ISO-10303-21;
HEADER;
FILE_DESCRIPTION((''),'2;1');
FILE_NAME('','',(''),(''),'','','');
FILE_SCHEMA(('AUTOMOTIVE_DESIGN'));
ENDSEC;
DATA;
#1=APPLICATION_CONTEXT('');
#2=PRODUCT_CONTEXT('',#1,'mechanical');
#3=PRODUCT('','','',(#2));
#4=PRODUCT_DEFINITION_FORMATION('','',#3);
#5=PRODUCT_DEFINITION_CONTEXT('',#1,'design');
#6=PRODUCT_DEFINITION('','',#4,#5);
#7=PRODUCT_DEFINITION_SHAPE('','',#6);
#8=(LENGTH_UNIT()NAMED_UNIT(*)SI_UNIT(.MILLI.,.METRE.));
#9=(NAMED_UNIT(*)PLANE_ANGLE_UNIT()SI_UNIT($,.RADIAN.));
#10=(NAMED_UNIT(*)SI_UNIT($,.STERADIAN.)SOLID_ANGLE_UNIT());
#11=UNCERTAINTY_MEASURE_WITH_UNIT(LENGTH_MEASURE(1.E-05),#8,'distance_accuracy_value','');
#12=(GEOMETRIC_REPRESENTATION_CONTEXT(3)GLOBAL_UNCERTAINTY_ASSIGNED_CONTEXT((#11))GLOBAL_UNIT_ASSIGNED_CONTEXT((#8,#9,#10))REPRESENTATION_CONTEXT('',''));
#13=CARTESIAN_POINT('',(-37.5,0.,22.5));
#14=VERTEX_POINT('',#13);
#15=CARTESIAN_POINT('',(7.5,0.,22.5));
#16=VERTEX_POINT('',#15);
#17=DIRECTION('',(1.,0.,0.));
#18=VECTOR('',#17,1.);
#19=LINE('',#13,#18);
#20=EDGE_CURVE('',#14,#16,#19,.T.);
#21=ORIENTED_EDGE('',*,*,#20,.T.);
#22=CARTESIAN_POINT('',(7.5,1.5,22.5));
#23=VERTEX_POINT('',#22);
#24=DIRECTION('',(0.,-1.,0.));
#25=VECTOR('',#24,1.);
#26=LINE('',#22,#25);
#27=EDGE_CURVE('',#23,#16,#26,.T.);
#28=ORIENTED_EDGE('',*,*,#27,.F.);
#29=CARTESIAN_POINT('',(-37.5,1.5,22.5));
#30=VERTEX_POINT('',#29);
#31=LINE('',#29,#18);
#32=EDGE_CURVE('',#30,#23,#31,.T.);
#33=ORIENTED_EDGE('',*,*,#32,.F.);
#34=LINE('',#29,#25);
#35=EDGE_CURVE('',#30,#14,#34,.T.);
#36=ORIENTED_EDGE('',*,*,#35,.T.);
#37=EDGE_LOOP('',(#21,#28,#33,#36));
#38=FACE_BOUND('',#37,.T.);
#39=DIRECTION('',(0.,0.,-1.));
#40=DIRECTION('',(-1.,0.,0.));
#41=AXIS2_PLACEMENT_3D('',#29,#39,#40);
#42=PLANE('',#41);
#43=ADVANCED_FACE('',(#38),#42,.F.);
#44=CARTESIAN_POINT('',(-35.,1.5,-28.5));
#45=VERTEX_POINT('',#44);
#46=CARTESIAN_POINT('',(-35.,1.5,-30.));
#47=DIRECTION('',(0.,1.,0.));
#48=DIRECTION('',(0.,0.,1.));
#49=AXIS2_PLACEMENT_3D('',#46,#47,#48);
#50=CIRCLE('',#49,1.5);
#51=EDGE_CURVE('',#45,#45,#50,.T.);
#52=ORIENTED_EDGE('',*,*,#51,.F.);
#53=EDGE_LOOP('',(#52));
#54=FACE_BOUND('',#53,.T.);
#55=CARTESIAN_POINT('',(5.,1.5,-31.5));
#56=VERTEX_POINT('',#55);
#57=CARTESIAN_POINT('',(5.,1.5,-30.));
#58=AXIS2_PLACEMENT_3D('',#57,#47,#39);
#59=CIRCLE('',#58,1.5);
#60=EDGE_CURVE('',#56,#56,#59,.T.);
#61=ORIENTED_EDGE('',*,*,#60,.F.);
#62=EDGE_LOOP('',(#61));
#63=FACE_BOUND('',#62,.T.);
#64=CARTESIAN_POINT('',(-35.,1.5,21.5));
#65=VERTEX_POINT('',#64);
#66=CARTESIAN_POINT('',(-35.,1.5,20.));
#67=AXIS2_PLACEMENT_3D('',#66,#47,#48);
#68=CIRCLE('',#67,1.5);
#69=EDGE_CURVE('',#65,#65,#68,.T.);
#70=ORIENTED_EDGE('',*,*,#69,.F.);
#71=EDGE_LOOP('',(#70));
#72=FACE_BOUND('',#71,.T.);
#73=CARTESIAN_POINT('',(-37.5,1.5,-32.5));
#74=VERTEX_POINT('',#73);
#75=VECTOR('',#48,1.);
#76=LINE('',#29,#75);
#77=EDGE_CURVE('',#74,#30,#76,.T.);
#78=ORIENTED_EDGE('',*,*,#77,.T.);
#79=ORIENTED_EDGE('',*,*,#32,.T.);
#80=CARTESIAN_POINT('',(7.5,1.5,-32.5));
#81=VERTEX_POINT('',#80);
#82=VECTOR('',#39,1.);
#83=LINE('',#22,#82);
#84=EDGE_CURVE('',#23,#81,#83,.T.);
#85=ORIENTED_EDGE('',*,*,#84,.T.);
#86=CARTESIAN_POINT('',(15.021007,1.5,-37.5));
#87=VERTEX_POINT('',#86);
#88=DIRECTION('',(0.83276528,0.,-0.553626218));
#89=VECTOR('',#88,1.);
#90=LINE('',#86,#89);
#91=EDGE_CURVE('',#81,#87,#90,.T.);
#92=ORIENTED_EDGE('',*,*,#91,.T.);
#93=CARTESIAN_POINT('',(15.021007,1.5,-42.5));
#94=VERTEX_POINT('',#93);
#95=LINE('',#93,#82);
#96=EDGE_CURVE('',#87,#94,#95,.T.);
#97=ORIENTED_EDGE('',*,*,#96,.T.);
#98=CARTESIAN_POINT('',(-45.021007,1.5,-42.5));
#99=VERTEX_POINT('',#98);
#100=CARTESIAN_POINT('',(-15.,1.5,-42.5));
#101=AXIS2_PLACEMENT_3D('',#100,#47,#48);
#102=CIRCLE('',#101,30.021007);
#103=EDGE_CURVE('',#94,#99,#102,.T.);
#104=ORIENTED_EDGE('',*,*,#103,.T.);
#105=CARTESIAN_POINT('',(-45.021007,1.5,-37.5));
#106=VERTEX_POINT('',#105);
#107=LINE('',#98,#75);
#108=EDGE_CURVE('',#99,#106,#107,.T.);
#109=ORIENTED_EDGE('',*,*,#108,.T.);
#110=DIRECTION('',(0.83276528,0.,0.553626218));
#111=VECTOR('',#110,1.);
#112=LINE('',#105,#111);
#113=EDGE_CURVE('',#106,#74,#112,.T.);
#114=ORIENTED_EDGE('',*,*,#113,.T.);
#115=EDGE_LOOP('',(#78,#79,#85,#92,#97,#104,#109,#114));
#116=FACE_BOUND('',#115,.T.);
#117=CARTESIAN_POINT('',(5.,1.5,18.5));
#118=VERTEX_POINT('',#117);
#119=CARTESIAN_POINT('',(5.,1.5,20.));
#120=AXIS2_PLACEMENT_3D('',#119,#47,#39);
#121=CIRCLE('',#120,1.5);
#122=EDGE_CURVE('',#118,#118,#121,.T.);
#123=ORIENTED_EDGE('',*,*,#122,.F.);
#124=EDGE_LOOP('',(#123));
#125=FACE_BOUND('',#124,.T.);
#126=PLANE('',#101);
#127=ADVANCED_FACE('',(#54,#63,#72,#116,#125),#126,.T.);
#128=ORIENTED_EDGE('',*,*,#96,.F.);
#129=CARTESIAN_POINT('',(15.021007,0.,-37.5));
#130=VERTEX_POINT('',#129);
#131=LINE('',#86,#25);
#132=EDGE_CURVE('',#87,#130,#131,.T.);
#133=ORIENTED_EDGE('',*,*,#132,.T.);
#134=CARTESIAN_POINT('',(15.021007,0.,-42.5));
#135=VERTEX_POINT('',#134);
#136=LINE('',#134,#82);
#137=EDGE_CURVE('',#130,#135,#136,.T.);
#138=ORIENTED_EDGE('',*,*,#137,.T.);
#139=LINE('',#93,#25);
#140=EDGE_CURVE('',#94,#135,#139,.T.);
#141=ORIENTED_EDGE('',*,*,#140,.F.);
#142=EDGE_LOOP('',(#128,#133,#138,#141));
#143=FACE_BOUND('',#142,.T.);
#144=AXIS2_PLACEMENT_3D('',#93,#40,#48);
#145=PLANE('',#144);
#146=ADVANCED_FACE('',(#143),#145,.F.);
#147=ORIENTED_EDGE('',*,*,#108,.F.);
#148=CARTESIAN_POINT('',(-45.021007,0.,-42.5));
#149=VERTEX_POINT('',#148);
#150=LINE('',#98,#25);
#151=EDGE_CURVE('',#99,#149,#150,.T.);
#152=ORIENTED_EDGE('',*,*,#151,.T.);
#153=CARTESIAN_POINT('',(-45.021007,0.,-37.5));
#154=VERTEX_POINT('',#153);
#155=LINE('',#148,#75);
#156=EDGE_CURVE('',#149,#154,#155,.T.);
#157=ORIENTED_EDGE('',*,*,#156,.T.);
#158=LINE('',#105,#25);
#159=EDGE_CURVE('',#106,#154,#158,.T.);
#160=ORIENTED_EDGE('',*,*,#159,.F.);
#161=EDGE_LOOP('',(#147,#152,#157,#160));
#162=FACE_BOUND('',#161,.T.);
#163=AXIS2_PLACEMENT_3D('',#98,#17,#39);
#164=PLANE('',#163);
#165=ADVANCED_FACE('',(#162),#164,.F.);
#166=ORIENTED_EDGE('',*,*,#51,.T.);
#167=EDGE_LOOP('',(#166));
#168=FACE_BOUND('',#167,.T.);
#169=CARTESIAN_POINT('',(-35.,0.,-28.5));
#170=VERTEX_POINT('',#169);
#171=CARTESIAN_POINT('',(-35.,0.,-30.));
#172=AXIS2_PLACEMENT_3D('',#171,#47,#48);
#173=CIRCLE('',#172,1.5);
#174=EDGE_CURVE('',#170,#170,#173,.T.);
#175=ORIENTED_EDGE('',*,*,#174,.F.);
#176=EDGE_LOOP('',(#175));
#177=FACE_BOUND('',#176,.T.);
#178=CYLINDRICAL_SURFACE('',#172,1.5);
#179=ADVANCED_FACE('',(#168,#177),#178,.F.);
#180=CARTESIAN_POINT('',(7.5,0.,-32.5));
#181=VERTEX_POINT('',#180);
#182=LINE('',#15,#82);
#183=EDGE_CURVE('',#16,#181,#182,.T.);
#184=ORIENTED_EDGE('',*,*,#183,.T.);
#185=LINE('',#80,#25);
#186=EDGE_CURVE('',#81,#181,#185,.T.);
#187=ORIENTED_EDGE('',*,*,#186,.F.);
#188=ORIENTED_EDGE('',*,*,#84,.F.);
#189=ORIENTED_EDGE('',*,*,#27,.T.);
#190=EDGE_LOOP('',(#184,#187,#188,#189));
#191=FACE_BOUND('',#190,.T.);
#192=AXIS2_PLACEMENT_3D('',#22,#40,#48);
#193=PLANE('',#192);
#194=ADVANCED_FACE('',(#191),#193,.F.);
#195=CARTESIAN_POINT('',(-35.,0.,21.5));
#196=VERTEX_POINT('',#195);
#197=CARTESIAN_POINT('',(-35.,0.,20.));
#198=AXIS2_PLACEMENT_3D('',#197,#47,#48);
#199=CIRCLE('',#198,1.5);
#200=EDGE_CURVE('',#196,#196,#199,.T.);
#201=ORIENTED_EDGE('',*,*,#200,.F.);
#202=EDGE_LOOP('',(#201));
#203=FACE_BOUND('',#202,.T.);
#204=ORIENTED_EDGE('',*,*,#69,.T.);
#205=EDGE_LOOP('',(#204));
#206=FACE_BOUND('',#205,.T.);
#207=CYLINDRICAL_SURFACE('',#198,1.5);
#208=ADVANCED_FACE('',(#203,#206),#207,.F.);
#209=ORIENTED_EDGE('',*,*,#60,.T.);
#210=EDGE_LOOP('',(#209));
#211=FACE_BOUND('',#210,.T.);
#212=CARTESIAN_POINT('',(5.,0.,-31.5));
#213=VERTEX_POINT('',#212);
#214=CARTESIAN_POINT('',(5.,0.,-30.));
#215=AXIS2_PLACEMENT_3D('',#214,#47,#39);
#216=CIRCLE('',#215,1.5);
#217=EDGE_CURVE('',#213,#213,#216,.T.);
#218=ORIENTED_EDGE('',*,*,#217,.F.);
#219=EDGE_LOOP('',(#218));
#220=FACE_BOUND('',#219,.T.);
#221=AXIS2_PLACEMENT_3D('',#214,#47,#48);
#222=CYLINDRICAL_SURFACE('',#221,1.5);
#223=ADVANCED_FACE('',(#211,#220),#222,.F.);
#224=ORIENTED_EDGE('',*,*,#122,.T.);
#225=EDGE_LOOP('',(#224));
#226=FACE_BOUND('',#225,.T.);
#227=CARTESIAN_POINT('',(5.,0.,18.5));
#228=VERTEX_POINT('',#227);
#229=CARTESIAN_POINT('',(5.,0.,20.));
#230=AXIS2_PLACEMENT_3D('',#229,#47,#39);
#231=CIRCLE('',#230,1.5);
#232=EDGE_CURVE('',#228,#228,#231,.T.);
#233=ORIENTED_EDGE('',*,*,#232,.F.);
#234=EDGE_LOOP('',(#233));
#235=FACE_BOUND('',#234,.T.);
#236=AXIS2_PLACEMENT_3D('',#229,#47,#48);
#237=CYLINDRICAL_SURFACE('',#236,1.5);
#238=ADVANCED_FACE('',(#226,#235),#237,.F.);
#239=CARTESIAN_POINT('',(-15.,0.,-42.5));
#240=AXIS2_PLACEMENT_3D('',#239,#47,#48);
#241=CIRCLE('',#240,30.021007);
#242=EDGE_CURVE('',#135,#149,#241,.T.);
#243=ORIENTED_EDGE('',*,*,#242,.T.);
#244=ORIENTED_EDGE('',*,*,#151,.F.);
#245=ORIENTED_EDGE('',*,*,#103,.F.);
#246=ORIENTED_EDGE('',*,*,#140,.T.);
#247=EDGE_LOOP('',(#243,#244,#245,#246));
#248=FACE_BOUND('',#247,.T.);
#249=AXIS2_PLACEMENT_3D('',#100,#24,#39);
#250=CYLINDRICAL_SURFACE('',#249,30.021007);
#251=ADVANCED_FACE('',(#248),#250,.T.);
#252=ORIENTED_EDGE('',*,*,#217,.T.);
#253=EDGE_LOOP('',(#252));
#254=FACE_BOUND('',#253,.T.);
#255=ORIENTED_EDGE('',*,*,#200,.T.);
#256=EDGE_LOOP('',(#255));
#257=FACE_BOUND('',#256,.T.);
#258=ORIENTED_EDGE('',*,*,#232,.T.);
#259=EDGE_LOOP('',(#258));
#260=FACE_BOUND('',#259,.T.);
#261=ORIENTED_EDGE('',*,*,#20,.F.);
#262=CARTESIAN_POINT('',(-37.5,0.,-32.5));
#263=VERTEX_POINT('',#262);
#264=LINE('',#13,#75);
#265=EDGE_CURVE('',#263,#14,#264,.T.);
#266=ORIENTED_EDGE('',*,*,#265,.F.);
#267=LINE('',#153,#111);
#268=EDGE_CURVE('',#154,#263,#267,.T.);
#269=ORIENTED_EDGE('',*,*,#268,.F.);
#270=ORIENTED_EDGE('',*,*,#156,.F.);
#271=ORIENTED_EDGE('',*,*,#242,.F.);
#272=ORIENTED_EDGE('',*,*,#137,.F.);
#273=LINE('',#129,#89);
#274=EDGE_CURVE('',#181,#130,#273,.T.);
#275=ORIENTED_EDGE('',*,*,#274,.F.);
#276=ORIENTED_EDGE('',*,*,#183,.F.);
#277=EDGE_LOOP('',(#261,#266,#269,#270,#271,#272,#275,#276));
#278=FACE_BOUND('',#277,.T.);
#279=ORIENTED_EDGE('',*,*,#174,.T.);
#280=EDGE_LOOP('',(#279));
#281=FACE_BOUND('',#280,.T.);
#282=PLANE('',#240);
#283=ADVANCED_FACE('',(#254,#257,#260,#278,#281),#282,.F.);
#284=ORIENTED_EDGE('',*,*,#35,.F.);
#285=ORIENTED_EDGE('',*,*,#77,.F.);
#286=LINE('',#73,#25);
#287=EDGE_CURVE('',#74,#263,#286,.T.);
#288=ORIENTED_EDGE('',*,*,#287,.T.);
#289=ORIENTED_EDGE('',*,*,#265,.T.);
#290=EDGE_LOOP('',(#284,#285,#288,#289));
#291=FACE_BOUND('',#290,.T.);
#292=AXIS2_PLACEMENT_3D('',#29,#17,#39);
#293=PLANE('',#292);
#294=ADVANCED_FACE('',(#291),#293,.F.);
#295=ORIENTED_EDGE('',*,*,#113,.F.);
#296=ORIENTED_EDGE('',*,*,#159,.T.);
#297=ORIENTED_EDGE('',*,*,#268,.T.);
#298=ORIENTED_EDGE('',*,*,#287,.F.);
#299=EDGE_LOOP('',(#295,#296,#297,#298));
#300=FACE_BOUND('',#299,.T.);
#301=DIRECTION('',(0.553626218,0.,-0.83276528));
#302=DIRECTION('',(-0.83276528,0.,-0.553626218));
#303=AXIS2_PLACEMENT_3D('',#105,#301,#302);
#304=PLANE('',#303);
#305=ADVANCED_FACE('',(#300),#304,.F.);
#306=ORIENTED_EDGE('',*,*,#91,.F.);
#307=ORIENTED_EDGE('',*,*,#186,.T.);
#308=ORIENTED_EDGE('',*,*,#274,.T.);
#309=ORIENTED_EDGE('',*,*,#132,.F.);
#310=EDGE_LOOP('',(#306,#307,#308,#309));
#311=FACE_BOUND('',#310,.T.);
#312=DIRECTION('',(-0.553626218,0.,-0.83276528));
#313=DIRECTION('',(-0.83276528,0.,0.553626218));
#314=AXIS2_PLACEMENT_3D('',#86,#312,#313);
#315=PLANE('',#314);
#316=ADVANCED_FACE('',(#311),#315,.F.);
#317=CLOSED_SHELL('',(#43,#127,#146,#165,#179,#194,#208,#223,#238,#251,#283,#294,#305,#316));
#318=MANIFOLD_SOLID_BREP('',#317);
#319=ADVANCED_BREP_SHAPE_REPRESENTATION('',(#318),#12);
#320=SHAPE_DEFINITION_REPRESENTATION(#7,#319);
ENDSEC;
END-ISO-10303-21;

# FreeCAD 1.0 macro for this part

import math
import FreeCAD as App
import Part
import Sketcher

V = App.Vector
Q = App.Units.Quantity

doc = App.newDocument("Part")
body = doc.addObject("PartDesign::Body", "Body")

sketch1 = body.newObject("Sketcher::SketchObject", "Sketch")
sketch1.AttachmentSupport = (doc.getObject("XZ_Plane"), [""])
sketch1.MapMode = "FlatFace"
sketch1.addGeometry([
    Part.LineSegment(V(-45, -42, 0), V(-45, -38, 0)),
    Part.LineSegment(V(-45, -38, 0), V(-38, -32, 0)),
    Part.LineSegment(V(-38, -32, 0), V(-38, 22, 0)),
    Part.LineSegment(V(-38, 22, 0), V(8, 22, 0)),
    Part.LineSegment(V(8, 22, 0), V(8, -32, 0)),
    Part.LineSegment(V(8, -32, 0), V(15, -38, 0)),
    Part.LineSegment(V(15, -38, 0), V(15, -42, 0)),
    Part.ArcOfCircle(Part.Circle(V(-15, -42, 0), V(0, 0, 1), 30), math.radians(180), math.radians(360)),
], False)
sketch1.addConstraint([
    Sketcher.Constraint("Coincident", 0, 2, 1, 1),
    Sketcher.Constraint("Coincident", 1, 2, 2, 1),
    Sketcher.Constraint("Coincident", 2, 2, 3, 1),
    Sketcher.Constraint("Coincident", 3, 2, 4, 1),
    Sketcher.Constraint("Coincident", 4, 2, 5, 1),
    Sketcher.Constraint("Coincident", 5, 2, 6, 1),
    Sketcher.Constraint("Tangent", 6, 2, 7, 2),
    Sketcher.Constraint("Tangent", 7, 1, 0, 1),
    Sketcher.Constraint("Vertical", 0),
    Sketcher.Constraint("Vertical", 2),
    Sketcher.Constraint("Horizontal", 3),
    Sketcher.Constraint("Vertical", 4),
    Sketcher.Constraint("Vertical", 6),
    Sketcher.Constraint("Horizontal", 1, 2, 4, 2),
    Sketcher.Constraint("Horizontal", 0, 2, 5, 2),
    Sketcher.Constraint("Equal", 1, 5),
    Sketcher.Constraint("DistanceX", 3, 1, 3, 2, Q("45 mm")),
    Sketcher.Constraint("DistanceY", 0, 1, 0, 2, Q("5 mm")),
    Sketcher.Constraint("DistanceY", 2, 1, 2, 2, Q("55 mm")),
    Sketcher.Constraint("DistanceX", 7, 3, -1, 1, Q("15 mm")),
    Sketcher.Constraint("DistanceY", 0, 2, 1, 2, Q("5 mm")),
    Sketcher.Constraint("DistanceY", 7, 3, -1, 1, Q("42.5 mm")),
    Sketcher.Constraint("Radius", 7, Q("30.021007 mm")),
])
pad1 = body.newObject("PartDesign::Pad", "Pad")
pad1.Profile = sketch1
pad1.Length = 1.5
pad1.Reversed = True

sketch2 = body.newObject("Sketcher::SketchObject", "Sketch001")
sketch2.AttachmentSupport = (doc.getObject("XZ_Plane"), [""])
sketch2.MapMode = "FlatFace"
sketch2.AttachmentOffset = App.Placement(V(0, 0, -1.5), App.Rotation())
sketch2.addGeometry([
    Part.Circle(V(-35, -30, 0), V(0, 0, 1), 1.5),
    Part.Circle(V(-35, 20, 0), V(0, 0, 1), 1.5),
    Part.Circle(V(5, 20, 0), V(0, 0, 1), 1.5),
    Part.Circle(V(5, -30, 0), V(0, 0, 1), 1.5),
], False)
sketch2.addConstraint([
    Sketcher.Constraint("Equal", 0, 1),
    Sketcher.Constraint("Equal", 1, 2),
    Sketcher.Constraint("Equal", 2, 3),
    Sketcher.Constraint("Horizontal", 1, 3, 2, 3),
    Sketcher.Constraint("Horizontal", 0, 3, 3, 3),
    Sketcher.Constraint("Vertical", 0, 3, 1, 3),
    Sketcher.Constraint("Vertical", 2, 3, 3, 3),
    Sketcher.Constraint("Diameter", 0, Q("3 mm")),
    Sketcher.Constraint("DistanceX", 0, 3, -1, 1, Q("35 mm")),
    Sketcher.Constraint("DistanceY", 0, 3, -1, 1, Q("30 mm")),
    Sketcher.Constraint("DistanceY", -1, 1, 1, 3, Q("20 mm")),
    Sketcher.Constraint("DistanceX", -1, 1, 2, 3, Q("5 mm")),
])
pocket1 = body.newObject("PartDesign::Pocket", "Pocket")
pocket1.Profile = sketch2
pocket1.Type = "ThroughAll"
pocket1.Reversed = True

doc.recompute()
